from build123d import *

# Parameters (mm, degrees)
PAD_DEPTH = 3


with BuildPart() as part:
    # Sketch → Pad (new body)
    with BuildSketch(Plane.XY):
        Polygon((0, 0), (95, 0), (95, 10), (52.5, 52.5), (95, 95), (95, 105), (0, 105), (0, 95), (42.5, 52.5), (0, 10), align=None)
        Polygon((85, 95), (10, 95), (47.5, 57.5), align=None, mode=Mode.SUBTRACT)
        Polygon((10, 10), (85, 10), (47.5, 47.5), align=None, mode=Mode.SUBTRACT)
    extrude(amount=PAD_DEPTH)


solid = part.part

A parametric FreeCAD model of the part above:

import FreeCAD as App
import Part
import Sketcher

V = App.Vector

doc = App.newDocument("Part")
body = doc.addObject("PartDesign::Body", "Body")

sketch1 = doc.addObject("Sketcher::SketchObject", "Sketch")
body.addObject(sketch1)
sketch1.AttachmentSupport = (doc.XY_Plane, [""])
sketch1.MapMode = "FlatFace"
sketch1.addGeometry(Part.LineSegment(V(0, 0, 0), V(95, 0, 0)), False)
sketch1.addGeometry(Part.LineSegment(V(95, 0, 0), V(95, 10, 0)), False)
sketch1.addGeometry(Part.LineSegment(V(95, 10, 0), V(52.5, 52.5, 0)), False)
sketch1.addGeometry(Part.LineSegment(V(52.5, 52.5, 0), V(95, 95, 0)), False)
sketch1.addGeometry(Part.LineSegment(V(95, 95, 0), V(95, 105, 0)), False)
sketch1.addGeometry(Part.LineSegment(V(95, 105, 0), V(0, 105, 0)), False)
sketch1.addGeometry(Part.LineSegment(V(0, 105, 0), V(0, 95, 0)), False)
sketch1.addGeometry(Part.LineSegment(V(0, 95, 0), V(42.5, 52.5, 0)), False)
sketch1.addGeometry(Part.LineSegment(V(42.5, 52.5, 0), V(0, 10, 0)), False)
sketch1.addGeometry(Part.LineSegment(V(0, 10, 0), V(0, 0, 0)), False)
sketch1.addGeometry(Part.LineSegment(V(85, 10, 0), V(10, 10, 0)), False)
sketch1.addGeometry(Part.LineSegment(V(10, 10, 0), V(47.5, 47.5, 0)), False)
sketch1.addGeometry(Part.LineSegment(V(47.5, 47.5, 0), V(85, 10, 0)), False)
sketch1.addGeometry(Part.LineSegment(V(10, 95, 0), V(85, 95, 0)), False)
sketch1.addGeometry(Part.LineSegment(V(85, 95, 0), V(47.5, 57.5, 0)), False)
sketch1.addGeometry(Part.LineSegment(V(47.5, 57.5, 0), V(10, 95, 0)), False)
sketch1.addConstraint(Sketcher.Constraint("Coincident", 0, 2, 1, 1))
sketch1.addConstraint(Sketcher.Constraint("Coincident", 1, 2, 2, 1))
sketch1.addConstraint(Sketcher.Constraint("Coincident", 2, 2, 3, 1))
sketch1.addConstraint(Sketcher.Constraint("Coincident", 3, 2, 4, 1))
sketch1.addConstraint(Sketcher.Constraint("Coincident", 4, 2, 5, 1))
sketch1.addConstraint(Sketcher.Constraint("Coincident", 5, 2, 6, 1))
sketch1.addConstraint(Sketcher.Constraint("Coincident", 6, 2, 7, 1))
sketch1.addConstraint(Sketcher.Constraint("Coincident", 7, 2, 8, 1))
sketch1.addConstraint(Sketcher.Constraint("Coincident", 8, 2, 9, 1))
sketch1.addConstraint(Sketcher.Constraint("Coincident", 9, 2, 0, 1))
sketch1.addConstraint(Sketcher.Constraint("Coincident", 10, 2, 11, 1))
sketch1.addConstraint(Sketcher.Constraint("Coincident", 11, 2, 12, 1))
sketch1.addConstraint(Sketcher.Constraint("Coincident", 12, 2, 10, 1))
sketch1.addConstraint(Sketcher.Constraint("Coincident", 13, 2, 14, 1))
sketch1.addConstraint(Sketcher.Constraint("Coincident", 14, 2, 15, 1))
sketch1.addConstraint(Sketcher.Constraint("Coincident", 15, 2, 13, 1))
sketch1.addConstraint(Sketcher.Constraint("Horizontal", 0))
sketch1.addConstraint(Sketcher.Constraint("Vertical", 1))
sketch1.addConstraint(Sketcher.Constraint("Vertical", 4))
sketch1.addConstraint(Sketcher.Constraint("Horizontal", 5))
sketch1.addConstraint(Sketcher.Constraint("Vertical", 6))
sketch1.addConstraint(Sketcher.Constraint("Vertical", 9))
sketch1.addConstraint(Sketcher.Constraint("Horizontal", 10))
sketch1.addConstraint(Sketcher.Constraint("Horizontal", 13))
sketch1.addConstraint(Sketcher.Constraint("Coincident", 9, 2, -1, 1))
sketch1.addConstraint(Sketcher.Constraint("PointOnObject", 5, 2, -2))
sketch1.addConstraint(Sketcher.Constraint("Perpendicular", 2, 3))
sketch1.addConstraint(Sketcher.Constraint("Perpendicular", 3, 7))
sketch1.addConstraint(Sketcher.Constraint("Perpendicular", 7, 8))
sketch1.addConstraint(Sketcher.Constraint("Parallel", 8, 11))
sketch1.addConstraint(Sketcher.Constraint("Perpendicular", 11, 12))
sketch1.addConstraint(Sketcher.Constraint("Perpendicular", 12, 14))
sketch1.addConstraint(Sketcher.Constraint("Perpendicular", 14, 15))
sketch1.addConstraint(Sketcher.Constraint("Horizontal", 3, 2, 6, 2))
sketch1.addConstraint(Sketcher.Constraint("Horizontal", 2, 2, 7, 2))
sketch1.addConstraint(Sketcher.Constraint("Horizontal", 1, 2, 8, 2))
sketch1.addConstraint(Sketcher.Constraint("Horizontal", 8, 2, 10, 2))
sketch1.addConstraint(Sketcher.Constraint("Horizontal", 6, 2, 13, 2))
sketch1.addConstraint(Sketcher.Constraint("Vertical", 1, 2, 3, 2))
sketch1.addConstraint(Sketcher.Constraint("Vertical", 12, 2, 13, 2))
sketch1.addConstraint(Sketcher.Constraint("Vertical", 11, 2, 14, 2))
sketch1.addConstraint(Sketcher.Constraint("Equal", 1, 4))
sketch1.addConstraint(Sketcher.Constraint("DistanceX", 0, 1, 0, 2, 95.0))
sketch1.addConstraint(Sketcher.Constraint("DistanceX", 10, 2, 10, 1, 75.0))
sketch1.addConstraint(Sketcher.Constraint("DistanceY", 1, 1, 1, 2, 10.0))
sketch1.addConstraint(Sketcher.Constraint("DistanceY", -1, 1, 3, 2, 95.0))
sketch1.addConstraint(Sketcher.Constraint("DistanceX", -1, 1, 10, 2, 10.0))
pad1 = doc.addObject("PartDesign::Pad", "Pad")
body.addObject(pad1)
pad1.Profile = sketch1
pad1.Length = 3

doc.recompute()
